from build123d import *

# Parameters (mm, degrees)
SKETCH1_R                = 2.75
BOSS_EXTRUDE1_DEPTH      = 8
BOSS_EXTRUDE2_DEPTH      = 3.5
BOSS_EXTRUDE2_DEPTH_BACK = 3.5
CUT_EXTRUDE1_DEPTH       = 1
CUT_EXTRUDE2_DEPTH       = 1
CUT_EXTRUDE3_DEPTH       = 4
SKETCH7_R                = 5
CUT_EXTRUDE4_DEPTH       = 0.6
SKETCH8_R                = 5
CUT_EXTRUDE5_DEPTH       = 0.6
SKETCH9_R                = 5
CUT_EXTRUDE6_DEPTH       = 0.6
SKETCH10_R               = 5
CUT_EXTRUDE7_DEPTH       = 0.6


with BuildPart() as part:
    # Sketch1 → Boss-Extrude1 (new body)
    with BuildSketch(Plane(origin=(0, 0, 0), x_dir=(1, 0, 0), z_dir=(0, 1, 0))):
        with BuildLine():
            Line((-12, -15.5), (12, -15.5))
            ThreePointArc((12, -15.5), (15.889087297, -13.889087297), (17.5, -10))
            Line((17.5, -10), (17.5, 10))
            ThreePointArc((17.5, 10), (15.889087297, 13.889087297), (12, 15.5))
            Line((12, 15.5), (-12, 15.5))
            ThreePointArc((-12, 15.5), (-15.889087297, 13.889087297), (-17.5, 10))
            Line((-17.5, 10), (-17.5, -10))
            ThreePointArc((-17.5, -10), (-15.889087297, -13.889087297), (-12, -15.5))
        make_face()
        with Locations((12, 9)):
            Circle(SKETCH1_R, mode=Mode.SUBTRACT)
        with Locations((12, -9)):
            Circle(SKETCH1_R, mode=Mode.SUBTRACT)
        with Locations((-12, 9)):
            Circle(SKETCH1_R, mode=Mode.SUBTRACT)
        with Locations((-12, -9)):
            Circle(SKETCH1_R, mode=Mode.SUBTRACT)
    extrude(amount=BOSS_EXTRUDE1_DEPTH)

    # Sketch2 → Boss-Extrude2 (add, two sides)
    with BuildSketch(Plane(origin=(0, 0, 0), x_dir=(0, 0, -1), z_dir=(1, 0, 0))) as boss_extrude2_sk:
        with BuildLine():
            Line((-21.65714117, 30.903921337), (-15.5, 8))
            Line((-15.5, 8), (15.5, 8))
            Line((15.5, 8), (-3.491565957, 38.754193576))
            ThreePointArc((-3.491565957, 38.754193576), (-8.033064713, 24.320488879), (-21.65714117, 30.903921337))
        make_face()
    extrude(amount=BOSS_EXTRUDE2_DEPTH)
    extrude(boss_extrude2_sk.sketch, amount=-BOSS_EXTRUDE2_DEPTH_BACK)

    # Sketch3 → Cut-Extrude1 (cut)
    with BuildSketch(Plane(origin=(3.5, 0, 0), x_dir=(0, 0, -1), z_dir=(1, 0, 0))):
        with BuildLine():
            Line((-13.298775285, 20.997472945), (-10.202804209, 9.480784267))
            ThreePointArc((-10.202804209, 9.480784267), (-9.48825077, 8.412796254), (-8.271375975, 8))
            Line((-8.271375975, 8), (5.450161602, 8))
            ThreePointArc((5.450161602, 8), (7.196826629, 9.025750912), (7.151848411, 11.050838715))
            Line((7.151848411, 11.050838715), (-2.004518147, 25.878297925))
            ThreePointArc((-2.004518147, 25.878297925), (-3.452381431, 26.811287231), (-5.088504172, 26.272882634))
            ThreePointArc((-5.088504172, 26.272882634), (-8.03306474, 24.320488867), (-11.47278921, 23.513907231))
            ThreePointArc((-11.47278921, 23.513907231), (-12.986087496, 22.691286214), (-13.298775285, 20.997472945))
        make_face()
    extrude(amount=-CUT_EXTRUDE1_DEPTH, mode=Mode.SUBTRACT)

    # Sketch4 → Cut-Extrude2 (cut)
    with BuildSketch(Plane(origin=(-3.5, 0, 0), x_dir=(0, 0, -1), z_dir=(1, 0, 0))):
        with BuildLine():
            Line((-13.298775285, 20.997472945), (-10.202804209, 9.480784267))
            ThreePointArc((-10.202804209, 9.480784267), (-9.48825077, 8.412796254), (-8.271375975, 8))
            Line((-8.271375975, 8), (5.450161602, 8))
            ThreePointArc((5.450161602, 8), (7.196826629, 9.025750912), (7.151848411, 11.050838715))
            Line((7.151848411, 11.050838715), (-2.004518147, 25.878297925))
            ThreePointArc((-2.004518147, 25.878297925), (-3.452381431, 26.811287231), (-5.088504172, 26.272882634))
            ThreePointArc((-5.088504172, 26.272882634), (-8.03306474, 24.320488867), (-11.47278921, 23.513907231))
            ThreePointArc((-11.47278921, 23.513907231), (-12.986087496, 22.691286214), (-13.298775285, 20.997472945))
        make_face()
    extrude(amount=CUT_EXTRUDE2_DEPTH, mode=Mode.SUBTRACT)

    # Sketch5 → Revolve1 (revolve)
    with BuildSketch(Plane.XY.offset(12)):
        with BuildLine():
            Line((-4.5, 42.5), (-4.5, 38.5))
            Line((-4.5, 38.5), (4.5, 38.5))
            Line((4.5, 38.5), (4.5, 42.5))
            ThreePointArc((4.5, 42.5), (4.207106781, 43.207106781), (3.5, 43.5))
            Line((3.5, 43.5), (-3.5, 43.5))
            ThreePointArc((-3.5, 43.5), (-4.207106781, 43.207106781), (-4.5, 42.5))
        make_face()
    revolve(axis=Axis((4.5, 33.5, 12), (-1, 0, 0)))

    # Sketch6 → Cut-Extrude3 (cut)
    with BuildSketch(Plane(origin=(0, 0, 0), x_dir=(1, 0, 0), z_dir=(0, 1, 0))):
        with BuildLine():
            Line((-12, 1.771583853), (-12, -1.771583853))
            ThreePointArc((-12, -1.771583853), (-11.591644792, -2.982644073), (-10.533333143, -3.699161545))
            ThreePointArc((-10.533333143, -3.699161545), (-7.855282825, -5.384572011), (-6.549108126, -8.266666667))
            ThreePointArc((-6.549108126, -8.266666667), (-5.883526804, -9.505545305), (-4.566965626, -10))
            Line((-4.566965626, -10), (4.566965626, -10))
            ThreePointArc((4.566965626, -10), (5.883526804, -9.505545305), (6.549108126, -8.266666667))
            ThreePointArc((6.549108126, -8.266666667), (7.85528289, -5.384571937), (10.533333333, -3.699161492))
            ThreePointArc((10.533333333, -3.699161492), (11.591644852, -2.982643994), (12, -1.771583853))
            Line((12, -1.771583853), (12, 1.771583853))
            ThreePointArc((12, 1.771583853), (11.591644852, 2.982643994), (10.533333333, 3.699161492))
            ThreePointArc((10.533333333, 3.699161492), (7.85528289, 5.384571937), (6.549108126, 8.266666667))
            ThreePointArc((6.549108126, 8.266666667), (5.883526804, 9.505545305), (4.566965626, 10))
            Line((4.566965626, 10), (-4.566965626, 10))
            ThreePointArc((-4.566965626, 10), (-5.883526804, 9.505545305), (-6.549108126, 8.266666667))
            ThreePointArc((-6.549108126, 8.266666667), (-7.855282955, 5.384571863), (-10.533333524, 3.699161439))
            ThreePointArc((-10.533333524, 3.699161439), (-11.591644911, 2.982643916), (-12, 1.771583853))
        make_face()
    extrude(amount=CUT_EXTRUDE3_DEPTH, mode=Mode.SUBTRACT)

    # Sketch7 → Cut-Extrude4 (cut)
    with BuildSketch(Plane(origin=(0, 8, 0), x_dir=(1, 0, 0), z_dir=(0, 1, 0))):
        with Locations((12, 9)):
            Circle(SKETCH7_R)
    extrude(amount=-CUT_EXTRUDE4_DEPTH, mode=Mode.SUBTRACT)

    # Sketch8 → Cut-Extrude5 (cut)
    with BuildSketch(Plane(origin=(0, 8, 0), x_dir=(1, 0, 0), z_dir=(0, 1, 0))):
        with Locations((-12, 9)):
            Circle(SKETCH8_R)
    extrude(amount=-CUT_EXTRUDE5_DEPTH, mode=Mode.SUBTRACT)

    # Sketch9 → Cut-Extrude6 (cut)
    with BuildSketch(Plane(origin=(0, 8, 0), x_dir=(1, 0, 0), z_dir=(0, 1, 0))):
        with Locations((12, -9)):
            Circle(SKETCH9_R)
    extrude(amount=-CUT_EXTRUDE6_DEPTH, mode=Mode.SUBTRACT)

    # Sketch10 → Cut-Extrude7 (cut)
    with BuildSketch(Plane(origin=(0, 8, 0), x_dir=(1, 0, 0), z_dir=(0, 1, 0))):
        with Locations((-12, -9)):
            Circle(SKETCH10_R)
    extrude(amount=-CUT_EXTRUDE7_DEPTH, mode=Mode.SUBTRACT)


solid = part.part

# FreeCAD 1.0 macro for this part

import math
import FreeCAD as App
import Part
import Sketcher
Q = App.Units.Quantity

doc = App.newDocument("Part")
body = doc.addObject("PartDesign::Body", "Body")

# Sketch on XZ plane
sketch1 = body.newObject("Sketcher::SketchObject", "Sketch")
sketch1.AttachmentSupport = (doc.getObject("XZ_Plane"), [""])
sketch1.MapMode = "FlatFace"
sketch1.addGeometry([
    Part.LineSegment(App.Vector(-12, 15.5, 0), App.Vector(12, 15.5, 0)),  # 0
    Part.ArcOfCircle(Part.Circle(App.Vector(12, 10, 0), App.Vector(0, 0, 1), 5.5), math.radians(0), math.radians(90)),  # 1
    Part.LineSegment(App.Vector(17.5, 10, 0), App.Vector(17.5, -10, 0)),  # 2
    Part.ArcOfCircle(Part.Circle(App.Vector(12, -10, 0), App.Vector(0, 0, 1), 5.5), math.radians(-90), math.radians(0)),  # 3
    Part.LineSegment(App.Vector(12, -15.5, 0), App.Vector(-12, -15.5, 0)),  # 4
    Part.ArcOfCircle(Part.Circle(App.Vector(-12, -10, 0), App.Vector(0, 0, 1), 5.5), math.radians(180), math.radians(270)),  # 5
    Part.LineSegment(App.Vector(-17.5, -10, 0), App.Vector(-17.5, 10, 0)),  # 6
    Part.ArcOfCircle(Part.Circle(App.Vector(-12, 10, 0), App.Vector(0, 0, 1), 5.5), math.radians(90), math.radians(180)),  # 7
    Part.Circle(App.Vector(-12, 9, 0), App.Vector(0, 0, 1), 2.8),  # 8
    Part.Circle(App.Vector(12, 9, 0), App.Vector(0, 0, 1), 2.8),  # 9
    Part.Circle(App.Vector(-12, -9, 0), App.Vector(0, 0, 1), 2.8),  # 10
    Part.Circle(App.Vector(12, -9, 0), App.Vector(0, 0, 1), 2.8),  # 11
], False)
sketch1.addConstraint([
    Sketcher.Constraint("Tangent", 0, 2, 1, 2),
    Sketcher.Constraint("Tangent", 1, 1, 2, 1),
    Sketcher.Constraint("Tangent", 2, 2, 3, 2),
    Sketcher.Constraint("Tangent", 3, 1, 4, 1),
    Sketcher.Constraint("Tangent", 4, 2, 5, 2),
    Sketcher.Constraint("Tangent", 5, 1, 6, 1),
    Sketcher.Constraint("Tangent", 6, 2, 7, 2),
    Sketcher.Constraint("Tangent", 7, 1, 0, 1),
    Sketcher.Constraint("Horizontal", 0),
    Sketcher.Constraint("Vertical", 2),
    Sketcher.Constraint("Horizontal", 4),
    Sketcher.Constraint("Vertical", 6),
    Sketcher.Constraint("Equal", 1, 3),
    Sketcher.Constraint("Equal", 3, 5),
    Sketcher.Constraint("Equal", 5, 7),
    Sketcher.Constraint("Equal", 8, 9),
    Sketcher.Constraint("Equal", 9, 10),
    Sketcher.Constraint("Equal", 10, 11),
    Sketcher.Constraint("Symmetric", 1, 3, 5, 3, -1, 1),
    Sketcher.Constraint("Symmetric", 9, 3, 10, 3, -1, 1),
    Sketcher.Constraint("Symmetric", 8, 3, 11, 3, -1, 1),
    Sketcher.Constraint("Symmetric", 8, 3, 9, 3, -2),
    Sketcher.Constraint("Vertical", 7, 3, 8, 3),
    Sketcher.Constraint("Diameter", 8, Q("5.5 mm")),
    Sketcher.Constraint("Radius", 1, Q("5.5 mm")),
    Sketcher.Constraint("DistanceX", 0, 1, 0, 2, Q("24 mm")),
    Sketcher.Constraint("DistanceY", 2, 2, 2, 1, Q("20 mm")),
    Sketcher.Constraint("DistanceY", -1, 1, 8, 3, Q("9 mm")),
])
pad1 = body.newObject("PartDesign::Pad", "Pad")
pad1.Profile = sketch1
pad1.Length = 8
pad1.Reversed = True

# Sketch on YZ plane
sketch2 = body.newObject("Sketcher::SketchObject", "Sketch001")
sketch2.AttachmentSupport = (doc.getObject("YZ_Plane"), [""])
sketch2.MapMode = "FlatFace"
sketch2.addGeometry([
    Part.LineSegment(App.Vector(31, 22, 0), App.Vector(8, 16, 0)),
    Part.LineSegment(App.Vector(8, 16, 0), App.Vector(8, -16, 0)),
    Part.LineSegment(App.Vector(8, -16, 0), App.Vector(39, 3, 0)),
    Part.ArcOfCircle(Part.Circle(App.Vector(34, 12, 0), App.Vector(0, 0, 1), 10), math.radians(105), math.radians(302)),
], False)
sketch2.addConstraint([
    Sketcher.Constraint("Coincident", 0, 2, 1, 1),
    Sketcher.Constraint("Coincident", 1, 2, 2, 1),
    Sketcher.Constraint("Tangent", 2, 2, 3, 2),
    Sketcher.Constraint("Tangent", 3, 1, 0, 1),
    Sketcher.Constraint("Vertical", 1),
    Sketcher.Constraint("Radius", 3, Q("10 mm")),
    Sketcher.Constraint("DistanceY", 1, 2, 1, 1, Q("31 mm")),
    Sketcher.Constraint("DistanceY", -1, 1, 3, 3, Q("12 mm")),
    Sketcher.Constraint("DistanceX", -1, 1, 0, 2, Q("8 mm")),
    Sketcher.Constraint("DistanceX", -1, 1, 3, 3, Q("33.5 mm")),
    Sketcher.Constraint("DistanceY", -1, 1, 0, 2, Q("15.5 mm")),
])
pad2 = body.newObject("PartDesign::Pad", "Pad001")
pad2.Profile = sketch2
pad2.Type = "TwoLengths"
pad2.Length = 3.5
pad2.Length2 = 3.5

# Sketch on YZ plane
sketch3 = body.newObject("Sketcher::SketchObject", "Sketch002")
sketch3.AttachmentSupport = (doc.getObject("YZ_Plane"), [""])
sketch3.MapMode = "FlatFace"
sketch3.AttachmentOffset = App.Placement(App.Vector(0, 0, 3.5), App.Rotation())
sketch3.addGeometry([
    Part.LineSegment(App.Vector(21, 13.3, 0), App.Vector(9.5, 10.2, 0)),  # 0
    Part.ArcOfCircle(Part.Circle(App.Vector(10, 8.3, 0), App.Vector(0, 0, 1), 2), math.radians(105), math.radians(180)),  # 1
    Part.LineSegment(App.Vector(8, 8.3, 0), App.Vector(8, -5.5, 0)),  # 2
    Part.ArcOfCircle(Part.Circle(App.Vector(10, -5.5, 0), App.Vector(0, 0, 1), 2), math.radians(180), math.radians(302)),  # 3
    Part.LineSegment(App.Vector(11.1, -7.2, 0), App.Vector(25.9, 2, 0)),  # 4
    Part.ArcOfCircle(Part.Circle(App.Vector(24.8, 3.7, 0), App.Vector(0, 0, 1), 2), math.radians(-58), math.radians(44)),  # 5
    Part.ArcOfCircle(Part.Circle(App.Vector(33.5, 12, 0), App.Vector(0, 0, 1), 10), math.radians(-177), math.radians(-136)),  # 6
    Part.ArcOfCircle(Part.Circle(App.Vector(21.5, 11.4, 0), App.Vector(0, 0, 1), 2), math.radians(3), math.radians(105)),  # 7
], False)
sketch3.addConstraint([
    Sketcher.Constraint("Tangent", 0, 2, 1, 1),
    Sketcher.Constraint("Tangent", 1, 2, 2, 1),
    Sketcher.Constraint("Tangent", 2, 2, 3, 1),
    Sketcher.Constraint("Tangent", 3, 2, 4, 1),
    Sketcher.Constraint("Tangent", 4, 2, 5, 1),
    Sketcher.Constraint("Tangent", 5, 2, 6, 2),
    Sketcher.Constraint("Tangent", 6, 1, 7, 1),
    Sketcher.Constraint("Tangent", 7, 2, 0, 1),
    Sketcher.Constraint("Vertical", 2),
    Sketcher.Constraint("Equal", 1, 3),
    Sketcher.Constraint("Equal", 3, 5),
    Sketcher.Constraint("Equal", 5, 7),
    Sketcher.Constraint("Radius", 1, Q("2 mm")),
    Sketcher.Constraint("Radius", 6, Q("10 mm")),
    Sketcher.Constraint("DistanceX", -1, 1, 1, 3, Q("10 mm")),
    Sketcher.Constraint("DistanceY", -1, 1, 6, 3, Q("12 mm")),
    Sketcher.Constraint("DistanceX", -1, 1, 6, 3, Q("33.5 mm")),
    Sketcher.Constraint("DistanceY", 5, 3, 0, 2, Q("6.496599 mm")),
    Sketcher.Constraint("DistanceY", 5, 3, 5, 2, Q("1.382299 mm")),
    Sketcher.Constraint("Distance", 4, Q("17.426778 mm")),
    Sketcher.Constraint("DistanceY", 2, 2, 2, 1, Q("13.721538 mm")),
])
pocket1 = body.newObject("PartDesign::Pocket", "Pocket")
pocket1.Profile = sketch3
pocket1.Length = 1

# Sketch on YZ plane
sketch4 = body.newObject("Sketcher::SketchObject", "Sketch003")
sketch4.AttachmentSupport = (doc.getObject("YZ_Plane"), [""])
sketch4.MapMode = "FlatFace"
sketch4.AttachmentOffset = App.Placement(App.Vector(0, 0, -3.5), App.Rotation())
sketch4.addGeometry([
    Part.LineSegment(App.Vector(21, 13.3, 0), App.Vector(9.5, 10.2, 0)),  # 0
    Part.ArcOfCircle(Part.Circle(App.Vector(10, 8.3, 0), App.Vector(0, 0, 1), 2), math.radians(105), math.radians(180)),  # 1
    Part.LineSegment(App.Vector(8, 8.3, 0), App.Vector(8, -5.5, 0)),  # 2
    Part.ArcOfCircle(Part.Circle(App.Vector(10, -5.5, 0), App.Vector(0, 0, 1), 2), math.radians(180), math.radians(302)),  # 3
    Part.LineSegment(App.Vector(11.1, -7.2, 0), App.Vector(25.9, 2, 0)),  # 4
    Part.ArcOfCircle(Part.Circle(App.Vector(24.8, 3.7, 0), App.Vector(0, 0, 1), 2), math.radians(-58), math.radians(44)),  # 5
    Part.ArcOfCircle(Part.Circle(App.Vector(33.5, 12, 0), App.Vector(0, 0, 1), 10), math.radians(-177), math.radians(-136)),  # 6
    Part.ArcOfCircle(Part.Circle(App.Vector(21.5, 11.4, 0), App.Vector(0, 0, 1), 2), math.radians(3), math.radians(105)),  # 7
], False)
sketch4.addConstraint([
    Sketcher.Constraint("Tangent", 0, 2, 1, 1),
    Sketcher.Constraint("Tangent", 1, 2, 2, 1),
    Sketcher.Constraint("Tangent", 2, 2, 3, 1),
    Sketcher.Constraint("Tangent", 3, 2, 4, 1),
    Sketcher.Constraint("Tangent", 4, 2, 5, 1),
    Sketcher.Constraint("Tangent", 5, 2, 6, 2),
    Sketcher.Constraint("Tangent", 6, 1, 7, 1),
    Sketcher.Constraint("Tangent", 7, 2, 0, 1),
    Sketcher.Constraint("Vertical", 2),
    Sketcher.Constraint("Equal", 1, 3),
    Sketcher.Constraint("Equal", 3, 5),
    Sketcher.Constraint("Equal", 5, 7),
    Sketcher.Constraint("Radius", 1, Q("2 mm")),
    Sketcher.Constraint("Radius", 6, Q("10 mm")),
    Sketcher.Constraint("DistanceX", -1, 1, 1, 3, Q("10 mm")),
    Sketcher.Constraint("DistanceY", -1, 1, 6, 3, Q("12 mm")),
    Sketcher.Constraint("DistanceX", -1, 1, 6, 3, Q("33.5 mm")),
    Sketcher.Constraint("DistanceY", 5, 3, 0, 2, Q("6.496599 mm")),
    Sketcher.Constraint("DistanceY", 5, 3, 5, 2, Q("1.382299 mm")),
    Sketcher.Constraint("Distance", 4, Q("17.426778 mm")),
    Sketcher.Constraint("DistanceY", 2, 2, 2, 1, Q("13.721538 mm")),
])
pocket2 = body.newObject("PartDesign::Pocket", "Pocket001")
pocket2.Profile = sketch4
pocket2.Length = 1
pocket2.Reversed = True

# Sketch on XY plane
sketch5 = body.newObject("Sketcher::SketchObject", "Sketch004")
sketch5.AttachmentSupport = (doc.getObject("XY_Plane"), [""])
sketch5.MapMode = "FlatFace"
sketch5.AttachmentOffset = App.Placement(App.Vector(0, 0, 12), App.Rotation())
sketch5.addGeometry([
    Part.LineSegment(App.Vector(-4.5, 42.5, 0), App.Vector(-4.5, 38.5, 0)),  # 0
    Part.LineSegment(App.Vector(-4.5, 38.5, 0), App.Vector(4.5, 38.5, 0)),  # 1
    Part.LineSegment(App.Vector(4.5, 38.5, 0), App.Vector(4.5, 42.5, 0)),  # 2
    Part.ArcOfCircle(Part.Circle(App.Vector(3.5, 42.5, 0), App.Vector(0, 0, 1), 1), math.radians(0), math.radians(90)),  # 3
    Part.LineSegment(App.Vector(3.5, 43.5, 0), App.Vector(-3.5, 43.5, 0)),  # 4
    Part.ArcOfCircle(Part.Circle(App.Vector(-3.5, 42.5, 0), App.Vector(0, 0, 1), 1), math.radians(90), math.radians(180)),  # 5
], False)
sketch5.addGeometry(Part.LineSegment(App.Vector(4.5, 33.5, 0), App.Vector(-4.5, 33.5, 0)), True)  # axis
sketch5.addConstraint([
    Sketcher.Constraint("Coincident", 0, 2, 1, 1),
    Sketcher.Constraint("Coincident", 1, 2, 2, 1),
    Sketcher.Constraint("Tangent", 2, 2, 3, 1),
    Sketcher.Constraint("Tangent", 3, 2, 4, 1),
    Sketcher.Constraint("Tangent", 4, 2, 5, 1),
    Sketcher.Constraint("Tangent", 5, 2, 0, 1),
    Sketcher.Constraint("Vertical", 0),
    Sketcher.Constraint("Horizontal", 1),
    Sketcher.Constraint("Vertical", 2),
    Sketcher.Constraint("Horizontal", 4),
    Sketcher.Constraint("Horizontal", 6),
    Sketcher.Constraint("Equal", 3, 5),
    Sketcher.Constraint("Vertical", 2, 2, 6, 1),
    Sketcher.Constraint("Vertical", 5, 2, 6, 2),
    Sketcher.Constraint("Radius", 3, Q("1 mm")),
    Sketcher.Constraint("DistanceX", 1, 1, 1, 2, Q("9 mm")),
    Sketcher.Constraint("DistanceY", 0, 2, 0, 1, Q("4 mm")),
    Sketcher.Constraint("DistanceY", 6, 1, 1, 2, Q("5 mm")),
    Sketcher.Constraint("DistanceX", -1, 1, 3, 3, Q("3.5 mm")),
    Sketcher.Constraint("DistanceY", -1, 1, 3, 3, Q("42.5 mm")),
])
revolution = body.newObject("PartDesign::Revolution", "Revolution")
revolution.Profile = sketch5
revolution.ReferenceAxis = (sketch5, ["Axis0"])
revolution.Angle = 360

# Sketch on XZ plane
sketch6 = body.newObject("Sketcher::SketchObject", "Sketch005")
sketch6.AttachmentSupport = (doc.getObject("XZ_Plane"), [""])
sketch6.MapMode = "FlatFace"
sketch6.addGeometry([
    Part.LineSegment(App.Vector(-12, -1.8, 0), App.Vector(-12, 1.8, 0)),  # 0
    Part.ArcOfCircle(Part.Circle(App.Vector(-10, 1.8, 0), App.Vector(0, 0, 1), 2), math.radians(105), math.radians(180)),  # 1
    Part.ArcOfCircle(Part.Circle(App.Vector(-12, 9, 0), App.Vector(0, 0, 1), 5.5), math.radians(-75), math.radians(-8)),  # 2
    Part.ArcOfCircle(Part.Circle(App.Vector(-4.6, 8, 0), App.Vector(0, 0, 1), 2), math.radians(90), math.radians(172)),  # 3
    Part.LineSegment(App.Vector(-4.6, 10, 0), App.Vector(4.6, 10, 0)),  # 4
    Part.ArcOfCircle(Part.Circle(App.Vector(4.6, 8, 0), App.Vector(0, 0, 1), 2), math.radians(8), math.radians(90)),  # 5
    Part.ArcOfCircle(Part.Circle(App.Vector(12, 9, 0), App.Vector(0, 0, 1), 5.5), math.radians(-172), math.radians(-105)),  # 6
    Part.ArcOfCircle(Part.Circle(App.Vector(10, 1.8, 0), App.Vector(0, 0, 1), 2), math.radians(0), math.radians(75)),  # 7
    Part.LineSegment(App.Vector(12, 1.8, 0), App.Vector(12, -1.8, 0)),  # 8
    Part.ArcOfCircle(Part.Circle(App.Vector(10, -1.8, 0), App.Vector(0, 0, 1), 2), math.radians(-75), math.radians(0)),  # 9
    Part.ArcOfCircle(Part.Circle(App.Vector(12, -9, 0), App.Vector(0, 0, 1), 5.5), math.radians(105), math.radians(172)),  # 10
    Part.ArcOfCircle(Part.Circle(App.Vector(4.6, -8, 0), App.Vector(0, 0, 1), 2), math.radians(-90), math.radians(-8)),  # 11
    Part.LineSegment(App.Vector(4.6, -10, 0), App.Vector(-4.6, -10, 0)),  # 12
    Part.ArcOfCircle(Part.Circle(App.Vector(-4.6, -8, 0), App.Vector(0, 0, 1), 2), math.radians(-172), math.radians(-90)),  # 13
    Part.ArcOfCircle(Part.Circle(App.Vector(-12, -9, 0), App.Vector(0, 0, 1), 5.5), math.radians(8), math.radians(75)),  # 14
    Part.ArcOfCircle(Part.Circle(App.Vector(-10, -1.8, 0), App.Vector(0, 0, 1), 2), math.radians(180), math.radians(255)),  # 15
], False)
sketch6.addConstraint([
    Sketcher.Constraint("Tangent", 0, 2, 1, 2),
    Sketcher.Constraint("Tangent", 1, 1, 2, 1),
    Sketcher.Constraint("Tangent", 2, 2, 3, 2),
    Sketcher.Constraint("Tangent", 3, 1, 4, 1),
    Sketcher.Constraint("Tangent", 4, 2, 5, 2),
    Sketcher.Constraint("Tangent", 5, 1, 6, 1),
    Sketcher.Constraint("Tangent", 6, 2, 7, 2),
    Sketcher.Constraint("Tangent", 7, 1, 8, 1),
    Sketcher.Constraint("Tangent", 8, 2, 9, 2),
    Sketcher.Constraint("Tangent", 9, 1, 10, 1),
    Sketcher.Constraint("Tangent", 10, 2, 11, 2),
    Sketcher.Constraint("Tangent", 11, 1, 12, 1),
    Sketcher.Constraint("Tangent", 12, 2, 13, 2),
    Sketcher.Constraint("Tangent", 13, 1, 14, 1),
    Sketcher.Constraint("Tangent", 14, 2, 15, 2),
    Sketcher.Constraint("Tangent", 15, 1, 0, 1),
    Sketcher.Constraint("Vertical", 0),
    Sketcher.Constraint("Horizontal", 4),
    Sketcher.Constraint("Vertical", 8),
    Sketcher.Constraint("Horizontal", 12),
    Sketcher.Constraint("Equal", 1, 3),
    Sketcher.Constraint("Equal", 3, 5),
    Sketcher.Constraint("Equal", 2, 6),
    Sketcher.Constraint("Equal", 5, 7),
    Sketcher.Constraint("Equal", 7, 9),
    Sketcher.Constraint("Equal", 6, 10),
    Sketcher.Constraint("Equal", 9, 11),
    Sketcher.Constraint("Equal", 11, 13),
    Sketcher.Constraint("Equal", 10, 14),
    Sketcher.Constraint("Equal", 13, 15),
    Sketcher.Constraint("Symmetric", 1, 3, 9, 3, -1, 1),
    Sketcher.Constraint("Symmetric", 3, 3, 11, 3, -1, 1),
    Sketcher.Constraint("Symmetric", 6, 3, 14, 3, -1, 1),
    Sketcher.Constraint("Symmetric", 2, 3, 6, 3, -2),
    Sketcher.Constraint("Vertical", 14, 3, 0, 2),
    Sketcher.Constraint("Radius", 1, Q("2 mm")),
    Sketcher.Constraint("Radius", 2, Q("5.5 mm")),
    Sketcher.Constraint("DistanceX", 1, 3, -1, 1, Q("10 mm")),
    Sketcher.Constraint("DistanceY", -1, 1, 2, 3, Q("9 mm")),
    Sketcher.Constraint("DistanceY", -1, 1, 3, 3, Q("8 mm")),
])
pocket3 = body.newObject("PartDesign::Pocket", "Pocket002")
pocket3.Profile = sketch6
pocket3.Length = 4

# Sketch on XZ plane
sketch7 = body.newObject("Sketcher::SketchObject", "Sketch006")
sketch7.AttachmentSupport = (doc.getObject("XZ_Plane"), [""])
sketch7.MapMode = "FlatFace"
sketch7.AttachmentOffset = App.Placement(App.Vector(0, 0, -8), App.Rotation())
sketch7.addGeometry(Part.Circle(App.Vector(12, -9, 0), App.Vector(0, 0, 1), 5), False)
sketch7.addConstraint([
    Sketcher.Constraint("Diameter", 0, Q("10 mm")),
    Sketcher.Constraint("DistanceX", -1, 1, 0, 3, Q("12 mm")),
    Sketcher.Constraint("DistanceY", 0, 3, -1, 1, Q("9 mm")),
])
pocket4 = body.newObject("PartDesign::Pocket", "Pocket003")
pocket4.Profile = sketch7
pocket4.Length = 0.6
pocket4.Reversed = True

# Sketch on XZ plane
sketch8 = body.newObject("Sketcher::SketchObject", "Sketch007")
sketch8.AttachmentSupport = (doc.getObject("XZ_Plane"), [""])
sketch8.MapMode = "FlatFace"
sketch8.AttachmentOffset = App.Placement(App.Vector(0, 0, -8), App.Rotation())
sketch8.addGeometry(Part.Circle(App.Vector(-12, -9, 0), App.Vector(0, 0, 1), 5), False)
sketch8.addConstraint([
    Sketcher.Constraint("Diameter", 0, Q("10 mm")),
    Sketcher.Constraint("DistanceX", 0, 3, -1, 1, Q("12 mm")),
    Sketcher.Constraint("DistanceY", 0, 3, -1, 1, Q("9 mm")),
])
pocket5 = body.newObject("PartDesign::Pocket", "Pocket004")
pocket5.Profile = sketch8
pocket5.Length = 0.6
pocket5.Reversed = True

# Sketch on XZ plane
sketch9 = body.newObject("Sketcher::SketchObject", "Sketch008")
sketch9.AttachmentSupport = (doc.getObject("XZ_Plane"), [""])
sketch9.MapMode = "FlatFace"
sketch9.AttachmentOffset = App.Placement(App.Vector(0, 0, -8), App.Rotation())
sketch9.addGeometry(Part.Circle(App.Vector(12, 9, 0), App.Vector(0, 0, 1), 5), False)
sketch9.addConstraint([
    Sketcher.Constraint("Diameter", 0, Q("10 mm")),
    Sketcher.Constraint("DistanceX", -1, 1, 0, 3, Q("12 mm")),
    Sketcher.Constraint("DistanceY", -1, 1, 0, 3, Q("9 mm")),
])
pocket6 = body.newObject("PartDesign::Pocket", "Pocket005")
pocket6.Profile = sketch9
pocket6.Length = 0.6
pocket6.Reversed = True

# Sketch on XZ plane
sketch10 = body.newObject("Sketcher::SketchObject", "Sketch009")
sketch10.AttachmentSupport = (doc.getObject("XZ_Plane"), [""])
sketch10.MapMode = "FlatFace"
sketch10.AttachmentOffset = App.Placement(App.Vector(0, 0, -8), App.Rotation())
sketch10.addGeometry(Part.Circle(App.Vector(-12, 9, 0), App.Vector(0, 0, 1), 5), False)
sketch10.addConstraint([
    Sketcher.Constraint("Diameter", 0, Q("10 mm")),
    Sketcher.Constraint("DistanceX", 0, 3, -1, 1, Q("12 mm")),
    Sketcher.Constraint("DistanceY", -1, 1, 0, 3, Q("9 mm")),
])
pocket7 = body.newObject("PartDesign::Pocket", "Pocket006")
pocket7.Profile = sketch10
pocket7.Length = 0.6
pocket7.Reversed = True

doc.recompute()
